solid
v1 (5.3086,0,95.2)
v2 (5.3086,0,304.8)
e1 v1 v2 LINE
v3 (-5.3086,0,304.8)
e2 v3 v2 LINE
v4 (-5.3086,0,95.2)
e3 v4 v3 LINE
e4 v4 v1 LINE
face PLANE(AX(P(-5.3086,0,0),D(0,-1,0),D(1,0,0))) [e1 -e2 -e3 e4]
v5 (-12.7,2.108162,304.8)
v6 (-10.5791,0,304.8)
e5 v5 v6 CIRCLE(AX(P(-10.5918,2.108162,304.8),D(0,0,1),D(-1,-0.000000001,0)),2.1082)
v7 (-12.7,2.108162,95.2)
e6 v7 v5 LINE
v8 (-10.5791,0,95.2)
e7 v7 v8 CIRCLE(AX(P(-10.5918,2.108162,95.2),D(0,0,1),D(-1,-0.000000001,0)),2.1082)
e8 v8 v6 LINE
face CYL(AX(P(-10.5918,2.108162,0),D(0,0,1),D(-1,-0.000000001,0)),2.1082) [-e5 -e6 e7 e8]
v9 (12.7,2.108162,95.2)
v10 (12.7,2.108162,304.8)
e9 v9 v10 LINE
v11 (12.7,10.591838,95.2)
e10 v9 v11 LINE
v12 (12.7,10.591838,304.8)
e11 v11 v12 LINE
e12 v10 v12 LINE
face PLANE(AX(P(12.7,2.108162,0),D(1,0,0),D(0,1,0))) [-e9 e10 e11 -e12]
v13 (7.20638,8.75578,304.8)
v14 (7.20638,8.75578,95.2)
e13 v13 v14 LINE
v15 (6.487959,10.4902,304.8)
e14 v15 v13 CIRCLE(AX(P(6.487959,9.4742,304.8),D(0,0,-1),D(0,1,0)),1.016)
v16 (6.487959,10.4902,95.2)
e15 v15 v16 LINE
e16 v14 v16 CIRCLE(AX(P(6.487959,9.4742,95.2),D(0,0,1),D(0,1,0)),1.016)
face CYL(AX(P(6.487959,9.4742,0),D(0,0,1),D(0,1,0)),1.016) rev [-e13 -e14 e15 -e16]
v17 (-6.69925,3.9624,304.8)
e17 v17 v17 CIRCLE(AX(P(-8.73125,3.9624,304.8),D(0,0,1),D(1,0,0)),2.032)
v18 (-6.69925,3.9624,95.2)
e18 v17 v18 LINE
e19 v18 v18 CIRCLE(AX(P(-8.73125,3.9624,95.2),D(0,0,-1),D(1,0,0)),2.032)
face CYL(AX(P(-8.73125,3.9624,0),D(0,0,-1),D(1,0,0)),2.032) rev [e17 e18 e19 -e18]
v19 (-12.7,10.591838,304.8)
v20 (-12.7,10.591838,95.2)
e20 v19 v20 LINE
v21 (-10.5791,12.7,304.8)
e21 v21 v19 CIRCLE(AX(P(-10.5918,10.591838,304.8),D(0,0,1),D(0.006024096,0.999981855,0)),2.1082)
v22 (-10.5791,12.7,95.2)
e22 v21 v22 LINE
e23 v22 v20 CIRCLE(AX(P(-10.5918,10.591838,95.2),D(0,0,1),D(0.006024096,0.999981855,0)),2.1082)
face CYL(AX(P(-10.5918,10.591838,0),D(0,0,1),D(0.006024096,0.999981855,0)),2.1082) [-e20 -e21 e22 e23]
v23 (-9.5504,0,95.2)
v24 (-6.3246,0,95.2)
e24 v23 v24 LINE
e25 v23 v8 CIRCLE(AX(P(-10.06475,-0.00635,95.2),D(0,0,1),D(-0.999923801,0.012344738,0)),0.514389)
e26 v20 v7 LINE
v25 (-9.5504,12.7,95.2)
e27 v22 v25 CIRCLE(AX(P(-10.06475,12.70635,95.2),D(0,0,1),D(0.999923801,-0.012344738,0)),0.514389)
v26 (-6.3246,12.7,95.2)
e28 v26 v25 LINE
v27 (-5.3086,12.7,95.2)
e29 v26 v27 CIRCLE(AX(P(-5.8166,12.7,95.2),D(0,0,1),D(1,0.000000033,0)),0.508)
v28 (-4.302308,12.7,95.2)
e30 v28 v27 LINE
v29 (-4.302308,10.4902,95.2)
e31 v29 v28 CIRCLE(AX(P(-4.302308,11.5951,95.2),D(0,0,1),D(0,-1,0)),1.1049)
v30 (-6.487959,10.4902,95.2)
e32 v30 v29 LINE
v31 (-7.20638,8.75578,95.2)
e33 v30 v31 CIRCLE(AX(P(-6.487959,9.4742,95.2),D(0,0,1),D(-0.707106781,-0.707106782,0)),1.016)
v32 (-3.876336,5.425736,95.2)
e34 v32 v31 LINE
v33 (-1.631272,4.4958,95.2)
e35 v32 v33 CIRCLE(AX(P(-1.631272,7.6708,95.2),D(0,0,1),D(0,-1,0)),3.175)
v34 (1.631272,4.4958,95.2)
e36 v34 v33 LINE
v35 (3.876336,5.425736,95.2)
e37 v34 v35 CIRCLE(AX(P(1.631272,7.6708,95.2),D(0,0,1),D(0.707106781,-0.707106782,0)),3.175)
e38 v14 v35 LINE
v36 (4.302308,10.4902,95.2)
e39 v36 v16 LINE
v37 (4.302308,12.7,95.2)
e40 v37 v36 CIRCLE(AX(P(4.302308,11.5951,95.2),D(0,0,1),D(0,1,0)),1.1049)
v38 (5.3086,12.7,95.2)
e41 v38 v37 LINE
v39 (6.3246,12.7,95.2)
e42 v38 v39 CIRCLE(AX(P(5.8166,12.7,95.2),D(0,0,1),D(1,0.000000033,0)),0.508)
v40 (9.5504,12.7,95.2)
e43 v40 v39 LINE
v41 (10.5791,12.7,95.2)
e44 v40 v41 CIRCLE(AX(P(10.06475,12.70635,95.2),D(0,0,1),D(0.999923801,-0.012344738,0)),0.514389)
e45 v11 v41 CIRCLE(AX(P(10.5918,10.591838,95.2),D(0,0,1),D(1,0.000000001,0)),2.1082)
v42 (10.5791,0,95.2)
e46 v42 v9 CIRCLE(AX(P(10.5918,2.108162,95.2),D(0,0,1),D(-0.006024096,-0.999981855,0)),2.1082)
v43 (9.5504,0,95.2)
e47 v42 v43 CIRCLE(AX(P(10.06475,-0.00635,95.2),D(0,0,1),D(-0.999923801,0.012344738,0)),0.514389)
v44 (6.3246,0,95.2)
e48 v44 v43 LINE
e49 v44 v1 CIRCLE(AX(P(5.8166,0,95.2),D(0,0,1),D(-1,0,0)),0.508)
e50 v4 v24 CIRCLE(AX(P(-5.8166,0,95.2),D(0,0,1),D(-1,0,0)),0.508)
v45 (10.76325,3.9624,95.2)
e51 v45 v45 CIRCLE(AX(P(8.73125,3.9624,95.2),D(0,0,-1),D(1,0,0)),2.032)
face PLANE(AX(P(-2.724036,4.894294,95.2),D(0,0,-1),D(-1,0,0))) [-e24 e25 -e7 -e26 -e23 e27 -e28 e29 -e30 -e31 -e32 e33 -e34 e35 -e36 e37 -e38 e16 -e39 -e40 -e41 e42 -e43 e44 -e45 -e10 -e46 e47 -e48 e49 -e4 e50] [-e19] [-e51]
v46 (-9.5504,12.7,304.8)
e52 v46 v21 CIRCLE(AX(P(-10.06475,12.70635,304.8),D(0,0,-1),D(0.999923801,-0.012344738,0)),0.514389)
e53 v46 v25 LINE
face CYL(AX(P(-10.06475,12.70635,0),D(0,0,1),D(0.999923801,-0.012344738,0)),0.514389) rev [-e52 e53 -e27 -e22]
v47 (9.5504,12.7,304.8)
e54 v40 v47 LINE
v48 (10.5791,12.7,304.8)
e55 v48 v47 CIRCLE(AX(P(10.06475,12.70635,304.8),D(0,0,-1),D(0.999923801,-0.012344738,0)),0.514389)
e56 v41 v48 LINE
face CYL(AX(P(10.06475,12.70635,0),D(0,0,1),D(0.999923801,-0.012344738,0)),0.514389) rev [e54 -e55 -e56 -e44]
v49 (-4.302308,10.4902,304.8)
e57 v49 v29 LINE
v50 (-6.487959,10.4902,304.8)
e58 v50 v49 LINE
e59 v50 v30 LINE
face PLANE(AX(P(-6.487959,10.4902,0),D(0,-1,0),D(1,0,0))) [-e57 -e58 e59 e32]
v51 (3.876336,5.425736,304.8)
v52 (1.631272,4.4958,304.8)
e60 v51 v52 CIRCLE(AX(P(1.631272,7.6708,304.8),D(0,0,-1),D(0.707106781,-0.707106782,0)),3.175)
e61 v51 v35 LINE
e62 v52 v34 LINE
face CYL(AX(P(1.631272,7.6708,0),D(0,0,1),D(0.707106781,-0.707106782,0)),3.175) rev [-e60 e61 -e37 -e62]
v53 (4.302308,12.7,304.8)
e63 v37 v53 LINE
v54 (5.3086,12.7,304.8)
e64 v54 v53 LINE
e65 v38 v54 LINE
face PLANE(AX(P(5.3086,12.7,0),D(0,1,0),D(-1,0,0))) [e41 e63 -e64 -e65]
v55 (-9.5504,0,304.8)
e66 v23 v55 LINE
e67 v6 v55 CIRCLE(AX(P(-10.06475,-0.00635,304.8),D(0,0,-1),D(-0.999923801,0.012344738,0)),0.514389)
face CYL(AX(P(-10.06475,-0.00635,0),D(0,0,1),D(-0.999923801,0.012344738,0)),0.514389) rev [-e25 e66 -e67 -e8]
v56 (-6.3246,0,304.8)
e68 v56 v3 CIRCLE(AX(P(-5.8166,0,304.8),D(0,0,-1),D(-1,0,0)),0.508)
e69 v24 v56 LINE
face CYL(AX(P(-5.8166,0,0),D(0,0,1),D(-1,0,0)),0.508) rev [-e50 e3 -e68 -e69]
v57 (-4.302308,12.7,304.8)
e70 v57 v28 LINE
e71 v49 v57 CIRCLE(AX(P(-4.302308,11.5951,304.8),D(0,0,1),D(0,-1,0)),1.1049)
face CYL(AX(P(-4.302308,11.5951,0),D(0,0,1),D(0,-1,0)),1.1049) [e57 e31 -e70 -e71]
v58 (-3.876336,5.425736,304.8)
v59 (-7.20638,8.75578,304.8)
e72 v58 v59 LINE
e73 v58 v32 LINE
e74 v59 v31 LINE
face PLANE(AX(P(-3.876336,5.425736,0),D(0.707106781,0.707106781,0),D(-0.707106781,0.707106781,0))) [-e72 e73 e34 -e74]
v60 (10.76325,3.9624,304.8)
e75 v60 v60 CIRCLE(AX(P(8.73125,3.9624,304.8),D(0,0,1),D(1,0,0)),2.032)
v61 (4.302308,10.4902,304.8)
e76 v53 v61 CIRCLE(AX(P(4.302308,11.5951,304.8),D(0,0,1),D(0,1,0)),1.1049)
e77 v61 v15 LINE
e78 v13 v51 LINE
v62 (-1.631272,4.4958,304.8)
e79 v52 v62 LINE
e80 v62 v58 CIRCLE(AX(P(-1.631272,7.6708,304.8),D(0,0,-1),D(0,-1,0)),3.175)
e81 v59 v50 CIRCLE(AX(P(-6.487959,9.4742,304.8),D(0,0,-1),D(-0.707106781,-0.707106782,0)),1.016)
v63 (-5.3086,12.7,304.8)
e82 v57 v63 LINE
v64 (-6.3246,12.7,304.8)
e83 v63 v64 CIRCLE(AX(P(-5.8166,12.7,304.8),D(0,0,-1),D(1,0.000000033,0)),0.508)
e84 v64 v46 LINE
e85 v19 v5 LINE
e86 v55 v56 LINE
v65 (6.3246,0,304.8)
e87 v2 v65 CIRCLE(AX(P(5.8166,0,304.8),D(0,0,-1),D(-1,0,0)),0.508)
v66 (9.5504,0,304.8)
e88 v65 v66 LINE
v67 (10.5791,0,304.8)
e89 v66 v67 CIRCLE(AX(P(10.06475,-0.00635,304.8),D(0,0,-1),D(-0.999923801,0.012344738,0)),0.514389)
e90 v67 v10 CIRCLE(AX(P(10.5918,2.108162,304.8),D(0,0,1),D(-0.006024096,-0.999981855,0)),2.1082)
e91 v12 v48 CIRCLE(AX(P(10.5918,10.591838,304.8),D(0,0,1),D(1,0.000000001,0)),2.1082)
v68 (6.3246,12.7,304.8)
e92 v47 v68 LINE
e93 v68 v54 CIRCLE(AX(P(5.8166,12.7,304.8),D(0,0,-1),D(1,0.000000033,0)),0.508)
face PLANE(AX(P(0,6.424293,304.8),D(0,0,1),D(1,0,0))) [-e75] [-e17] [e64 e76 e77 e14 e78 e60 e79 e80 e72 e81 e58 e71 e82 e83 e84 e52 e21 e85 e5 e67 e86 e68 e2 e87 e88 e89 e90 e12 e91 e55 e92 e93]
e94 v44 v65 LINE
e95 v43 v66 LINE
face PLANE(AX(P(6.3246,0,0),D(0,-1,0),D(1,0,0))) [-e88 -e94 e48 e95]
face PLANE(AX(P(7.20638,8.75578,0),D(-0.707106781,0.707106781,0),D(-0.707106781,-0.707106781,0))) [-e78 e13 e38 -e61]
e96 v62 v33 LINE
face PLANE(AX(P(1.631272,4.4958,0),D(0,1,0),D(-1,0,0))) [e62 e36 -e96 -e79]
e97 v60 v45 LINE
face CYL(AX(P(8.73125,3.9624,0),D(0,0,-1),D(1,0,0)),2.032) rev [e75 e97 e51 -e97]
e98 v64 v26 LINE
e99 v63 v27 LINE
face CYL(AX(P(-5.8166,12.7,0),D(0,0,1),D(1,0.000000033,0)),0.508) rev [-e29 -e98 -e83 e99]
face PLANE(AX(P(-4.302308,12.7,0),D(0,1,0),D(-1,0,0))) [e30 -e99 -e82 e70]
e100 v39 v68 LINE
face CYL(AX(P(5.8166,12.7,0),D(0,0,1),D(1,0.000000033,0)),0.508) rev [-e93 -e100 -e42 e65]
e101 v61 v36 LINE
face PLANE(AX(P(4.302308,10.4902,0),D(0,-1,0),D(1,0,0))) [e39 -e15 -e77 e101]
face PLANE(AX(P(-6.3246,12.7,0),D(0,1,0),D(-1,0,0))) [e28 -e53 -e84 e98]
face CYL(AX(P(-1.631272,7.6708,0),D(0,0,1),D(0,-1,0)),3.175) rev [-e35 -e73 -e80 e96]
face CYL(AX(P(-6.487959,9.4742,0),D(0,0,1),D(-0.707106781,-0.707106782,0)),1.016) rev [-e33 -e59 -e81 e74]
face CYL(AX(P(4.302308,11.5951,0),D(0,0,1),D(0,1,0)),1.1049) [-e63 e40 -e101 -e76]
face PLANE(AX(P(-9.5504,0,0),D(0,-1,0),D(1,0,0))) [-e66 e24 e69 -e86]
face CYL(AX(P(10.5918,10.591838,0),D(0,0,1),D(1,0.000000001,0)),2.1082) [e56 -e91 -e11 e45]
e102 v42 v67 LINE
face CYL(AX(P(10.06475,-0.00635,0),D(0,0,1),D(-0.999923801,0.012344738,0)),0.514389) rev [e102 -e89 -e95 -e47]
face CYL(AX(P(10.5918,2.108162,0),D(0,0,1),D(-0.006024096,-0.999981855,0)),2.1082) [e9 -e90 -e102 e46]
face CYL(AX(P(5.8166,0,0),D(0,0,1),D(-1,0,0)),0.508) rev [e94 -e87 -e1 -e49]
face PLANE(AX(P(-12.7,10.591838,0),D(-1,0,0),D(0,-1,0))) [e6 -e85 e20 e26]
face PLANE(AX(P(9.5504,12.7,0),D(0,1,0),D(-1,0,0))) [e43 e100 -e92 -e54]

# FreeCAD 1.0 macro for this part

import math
import FreeCAD as App
import Part
import Sketcher
from FreeCAD import Vector
Q = App.Units.Quantity

doc = App.newDocument("Part")
body = doc.addObject("PartDesign::Body", "Body")

sketch1 = doc.addObject("Sketcher::SketchObject", "Sketch")
body.addObject(sketch1)
sketch1.AttachmentSupport = (doc.XY_Plane, [""])
sketch1.MapMode = "FlatFace"
sketch1.addGeometry([
    Part.LineSegment(Vector(-12.7, 10.6, 0), Vector(-12.7, 2.1, 0)),
    Part.ArcOfCircle(Part.Circle(Vector(-10.6, 2.1, 0), Vector(0, 0, 1), 2.1), math.radians(-180), math.radians(-90)),
    Part.ArcOfCircle(Part.Circle(Vector(-10.1, 0, 0), Vector(0, 0, 1), 0.5), math.radians(1), math.radians(179)),
    Part.LineSegment(Vector(-9.6, 0, 0), Vector(-6.3, 0, 0)),
    Part.ArcOfCircle(Part.Circle(Vector(-5.8, 0, 0), Vector(0, 0, 1), 0.5), math.radians(0), math.radians(180)),
    Part.LineSegment(Vector(-5.3, 0, 0), Vector(5.3, 0, 0)),
    Part.ArcOfCircle(Part.Circle(Vector(5.8, 0, 0), Vector(0, 0, 1), 0.5), math.radians(0), math.radians(180)),
    Part.LineSegment(Vector(6.3, 0, 0), Vector(9.6, 0, 0)),
    Part.ArcOfCircle(Part.Circle(Vector(10.1, 0, 0), Vector(0, 0, 1), 0.5), math.radians(1), math.radians(179)),
    Part.ArcOfCircle(Part.Circle(Vector(10.6, 2.1, 0), Vector(0, 0, 1), 2.1), math.radians(-90), math.radians(0)),
    Part.LineSegment(Vector(12.7, 2.1, 0), Vector(12.7, 10.6, 0)),
    Part.ArcOfCircle(Part.Circle(Vector(10.6, 10.6, 0), Vector(0, 0, 1), 2.1), math.radians(0), math.radians(90)),
    Part.ArcOfCircle(Part.Circle(Vector(10.1, 12.7, 0), Vector(0, 0, 1), 0.5), math.radians(-179), math.radians(-1)),
    Part.LineSegment(Vector(9.6, 12.7, 0), Vector(6.3, 12.7, 0)),
    Part.ArcOfCircle(Part.Circle(Vector(5.8, 12.7, 0), Vector(0, 0, 1), 0.5), math.radians(180), math.radians(360)),
    Part.LineSegment(Vector(5.3, 12.7, 0), Vector(4.3, 12.7, 0)),
    Part.ArcOfCircle(Part.Circle(Vector(4.3, 11.6, 0), Vector(0, 0, 1), 1.1), math.radians(90), math.radians(270)),
    Part.LineSegment(Vector(4.3, 10.5, 0), Vector(6.5, 10.5, 0)),
    Part.ArcOfCircle(Part.Circle(Vector(6.5, 9.5, 0), Vector(0, 0, 1), 1), math.radians(-45), math.radians(90)),
    Part.LineSegment(Vector(7.2, 8.8, 0), Vector(3.9, 5.4, 0)),
    Part.ArcOfCircle(Part.Circle(Vector(1.6, 7.7, 0), Vector(0, 0, 1), 3.2), math.radians(-90), math.radians(-45)),
    Part.LineSegment(Vector(1.6, 4.5, 0), Vector(-1.6, 4.5, 0)),
    Part.ArcOfCircle(Part.Circle(Vector(-1.6, 7.7, 0), Vector(0, 0, 1), 3.2), math.radians(-135), math.radians(-90)),
    Part.LineSegment(Vector(-3.9, 5.4, 0), Vector(-7.2, 8.8, 0)),
    Part.ArcOfCircle(Part.Circle(Vector(-6.5, 9.5, 0), Vector(0, 0, 1), 1), math.radians(90), math.radians(225)),
    Part.LineSegment(Vector(-6.5, 10.5, 0), Vector(-4.3, 10.5, 0)),
    Part.ArcOfCircle(Part.Circle(Vector(-4.3, 11.6, 0), Vector(0, 0, 1), 1.1), math.radians(-90), math.radians(90)),
    Part.LineSegment(Vector(-4.3, 12.7, 0), Vector(-5.3, 12.7, 0)),
    Part.ArcOfCircle(Part.Circle(Vector(-5.8, 12.7, 0), Vector(0, 0, 1), 0.5), math.radians(180), math.radians(360)),
    Part.LineSegment(Vector(-6.3, 12.7, 0), Vector(-9.6, 12.7, 0)),
    Part.ArcOfCircle(Part.Circle(Vector(-10.1, 12.7, 0), Vector(0, 0, 1), 0.5), math.radians(-179), math.radians(-1)),
    Part.ArcOfCircle(Part.Circle(Vector(-10.6, 10.6, 0), Vector(0, 0, 1), 2.1), math.radians(90), math.radians(180)),
    Part.Circle(Vector(-8.7, 4, 0), Vector(0, 0, 1), 2),
    Part.Circle(Vector(8.7, 4, 0), Vector(0, 0, 1), 2),
], False)
sketch1.addConstraint([
    Sketcher.Constraint("Tangent", 0, 2, 1, 1),
    Sketcher.Constraint("Coincident", 1, 2, 2, 2),
    Sketcher.Constraint("Coincident", 2, 1, 3, 1),
    Sketcher.Constraint("Coincident", 3, 2, 4, 2),
    Sketcher.Constraint("Coincident", 4, 1, 5, 1),
    Sketcher.Constraint("Coincident", 5, 2, 6, 2),
    Sketcher.Constraint("Coincident", 6, 1, 7, 1),
    Sketcher.Constraint("Coincident", 7, 2, 8, 2),
    Sketcher.Constraint("Coincident", 8, 1, 9, 1),
    Sketcher.Constraint("Tangent", 9, 2, 10, 1),
    Sketcher.Constraint("Tangent", 10, 2, 11, 1),
    Sketcher.Constraint("Coincident", 11, 2, 12, 2),
    Sketcher.Constraint("Coincident", 12, 1, 13, 1),
    Sketcher.Constraint("Coincident", 13, 2, 14, 2),
    Sketcher.Constraint("Coincident", 14, 1, 15, 1),
    Sketcher.Constraint("Tangent", 15, 2, 16, 1),
    Sketcher.Constraint("Tangent", 16, 2, 17, 1),
    Sketcher.Constraint("Tangent", 17, 2, 18, 2),
    Sketcher.Constraint("Tangent", 18, 1, 19, 1),
    Sketcher.Constraint("Tangent", 19, 2, 20, 2),
    Sketcher.Constraint("Tangent", 20, 1, 21, 1),
    Sketcher.Constraint("Tangent", 21, 2, 22, 2),
    Sketcher.Constraint("Tangent", 22, 1, 23, 1),
    Sketcher.Constraint("Tangent", 23, 2, 24, 2),
    Sketcher.Constraint("Tangent", 24, 1, 25, 1),
    Sketcher.Constraint("Tangent", 25, 2, 26, 1),
    Sketcher.Constraint("Tangent", 26, 2, 27, 1),
    Sketcher.Constraint("Coincident", 27, 2, 28, 2),
    Sketcher.Constraint("Coincident", 28, 1, 29, 1),
    Sketcher.Constraint("Coincident", 29, 2, 30, 2),
    Sketcher.Constraint("Coincident", 30, 1, 31, 1),
    Sketcher.Constraint("Tangent", 31, 2, 0, 1),
    Sketcher.Constraint("Vertical", 0),
    Sketcher.Constraint("Horizontal", 3),
    Sketcher.Constraint("Horizontal", 5),
    Sketcher.Constraint("Horizontal", 7),
    Sketcher.Constraint("Vertical", 10),
    Sketcher.Constraint("Horizontal", 13),
    Sketcher.Constraint("Horizontal", 15),
    Sketcher.Constraint("Horizontal", 17),
    Sketcher.Constraint("Horizontal", 21),
    Sketcher.Constraint("Horizontal", 25),
    Sketcher.Constraint("Horizontal", 27),
    Sketcher.Constraint("Horizontal", 29),
    Sketcher.Constraint("Equal", 4, 6),
    Sketcher.Constraint("Equal", 2, 8),
    Sketcher.Constraint("Equal", 1, 9),
    Sketcher.Constraint("Equal", 9, 11),
    Sketcher.Constraint("Equal", 8, 12),
    Sketcher.Constraint("Equal", 6, 14),
    Sketcher.Constraint("Equal", 20, 22),
    Sketcher.Constraint("Equal", 18, 24),
    Sketcher.Constraint("Equal", 16, 26),
    Sketcher.Constraint("Equal", 14, 28),
    Sketcher.Constraint("Equal", 12, 30),
    Sketcher.Constraint("Equal", 11, 31),
    Sketcher.Constraint("Equal", 32, 33),
    Sketcher.Constraint("Symmetric", 4, 3, 6, 3, -1, 1),
    Sketcher.Constraint("Symmetric", 2, 1, 7, 2, -1, 1),
    Sketcher.Constraint("Symmetric", 1, 2, 8, 1, -1, 1),
    Sketcher.Constraint("Symmetric", 2, 3, 8, 3, -2),
    Sketcher.Constraint("Symmetric", 18, 3, 24, 3, -2),
    Sketcher.Constraint("Symmetric", 14, 3, 28, 3, -2),
    Sketcher.Constraint("Symmetric", 12, 3, 30, 3, -2),
    Sketcher.Constraint("Symmetric", 11, 3, 31, 3, -2),
    Sketcher.Constraint("Symmetric", 32, 3, 33, 3, -2),
    Sketcher.Constraint("PointOnObject", 4, 3, -1),
    Sketcher.Constraint("PointOnObject", 4, 1, -1),
    Sketcher.Constraint("Perpendicular", 19, 23),
    Sketcher.Constraint("Horizontal", 28, 3, 11, 2),
    Sketcher.Constraint("Horizontal", 11, 2, 12, 1),
    Sketcher.Constraint("Horizontal", 13, 2, 14, 1),
    Sketcher.Constraint("Horizontal", 19, 2, 22, 1),
    Sketcher.Constraint("Horizontal", 27, 2, 28, 1),
    Sketcher.Constraint("Vertical", 8, 3, 12, 3),
    Sketcher.Constraint("Vertical", 6, 3, 14, 3),
    Sketcher.Constraint("Vertical", 7, 2, 12, 1),
    Sketcher.Constraint("Equal", 17, 25),
    Sketcher.Constraint("Diameter", 32, Q("0.16 in")),
    Sketcher.Constraint("Radius", 4, Q("0.02 in")),
    Sketcher.Constraint("Radius", 18, Q("0.04 in")),
    Sketcher.Constraint("Radius", 1, Q("0.083 in")),
    Sketcher.Constraint("Radius", 20, Q("0.125 in")),
    Sketcher.Constraint("DistanceY", -1, 1, 14, 3, Q("0.5 in")),
    Sketcher.Constraint("DistanceX", 0, 2, -1, 1, Q("0.5 in")),
    Sketcher.Constraint("Radius", 16, Q("0.0435 in")),
    Sketcher.Constraint("DistanceX", 3, 1, 3, 2, Q("0.127 in")),
    Sketcher.Constraint("DistanceX", 5, 1, 5, 2, Q("0.418 in")),
    Sketcher.Constraint("DistanceY", -1, 1, 20, 3, Q("0.302 in")),
    Sketcher.Constraint("DistanceX", 32, 3, -1, 1, Q("0.34375 in")),
    Sketcher.Constraint("DistanceY", -1, 1, 32, 3, Q("0.156 in")),
    Sketcher.Constraint("Radius", 2, Q("0.514389 mm")),
    Sketcher.Constraint("DistanceY", 2, 3, 32, 3, Q("0.15625 in")),
    Sketcher.Constraint("DistanceX", 17, 1, 17, 2, Q("2.185651 mm")),
    Sketcher.Constraint("DistanceX", 15, 2, 15, 1, Q("1.006292 mm")),
])
pad1 = doc.addObject("PartDesign::Pad", "Pad")
body.addObject(pad1)
pad1.Profile = sketch1
pad1.Length = Q("24 in")
pad1.Midplane = True

sketch2 = doc.addObject("Sketcher::SketchObject", "Sketch001")
body.addObject(sketch2)
sketch2.AttachmentSupport = (doc.XY_Plane, [""])
sketch2.MapMode = "FlatFace"
sketch2.AttachmentOffset = App.Placement(Vector(0, 0, -12 * 25.4), App.Rotation())
sketch2.addGeometry([
    Part.LineSegment(Vector(19, 22, 0), Vector(19, -12, 0)),
    Part.LineSegment(Vector(19, -12, 0), Vector(-24, -12, 0)),
    Part.LineSegment(Vector(-24, -12, 0), Vector(-24, 22, 0)),
    Part.LineSegment(Vector(-24, 22, 0), Vector(19, 22, 0)),
], False)
sketch2.addConstraint([
    Sketcher.Constraint("Coincident", 0, 2, 1, 1),
    Sketcher.Constraint("Coincident", 1, 2, 2, 1),
    Sketcher.Constraint("Coincident", 2, 2, 3, 1),
    Sketcher.Constraint("Coincident", 3, 2, 0, 1),
    Sketcher.Constraint("Vertical", 0),
    Sketcher.Constraint("Horizontal", 1),
    Sketcher.Constraint("Vertical", 2),
    Sketcher.Constraint("Horizontal", 3),
    Sketcher.Constraint("DistanceX", 1, 2, 1, 1, Q("42.883082 mm")),
    Sketcher.Constraint("DistanceY", 0, 2, 0, 1, Q("34.457496 mm")),
    Sketcher.Constraint("DistanceX", -1, 1, 0, 2, Q("18.717505 mm")),
    Sketcher.Constraint("DistanceY", 0, 2, -1, 1, Q("12.334454 mm")),
])
pocket1 = doc.addObject("PartDesign::Pocket", "Pocket")
body.addObject(pocket1)
pocket1.Profile = sketch2
pocket1.Length = 400
pocket1.Reversed = True

doc.recompute()
